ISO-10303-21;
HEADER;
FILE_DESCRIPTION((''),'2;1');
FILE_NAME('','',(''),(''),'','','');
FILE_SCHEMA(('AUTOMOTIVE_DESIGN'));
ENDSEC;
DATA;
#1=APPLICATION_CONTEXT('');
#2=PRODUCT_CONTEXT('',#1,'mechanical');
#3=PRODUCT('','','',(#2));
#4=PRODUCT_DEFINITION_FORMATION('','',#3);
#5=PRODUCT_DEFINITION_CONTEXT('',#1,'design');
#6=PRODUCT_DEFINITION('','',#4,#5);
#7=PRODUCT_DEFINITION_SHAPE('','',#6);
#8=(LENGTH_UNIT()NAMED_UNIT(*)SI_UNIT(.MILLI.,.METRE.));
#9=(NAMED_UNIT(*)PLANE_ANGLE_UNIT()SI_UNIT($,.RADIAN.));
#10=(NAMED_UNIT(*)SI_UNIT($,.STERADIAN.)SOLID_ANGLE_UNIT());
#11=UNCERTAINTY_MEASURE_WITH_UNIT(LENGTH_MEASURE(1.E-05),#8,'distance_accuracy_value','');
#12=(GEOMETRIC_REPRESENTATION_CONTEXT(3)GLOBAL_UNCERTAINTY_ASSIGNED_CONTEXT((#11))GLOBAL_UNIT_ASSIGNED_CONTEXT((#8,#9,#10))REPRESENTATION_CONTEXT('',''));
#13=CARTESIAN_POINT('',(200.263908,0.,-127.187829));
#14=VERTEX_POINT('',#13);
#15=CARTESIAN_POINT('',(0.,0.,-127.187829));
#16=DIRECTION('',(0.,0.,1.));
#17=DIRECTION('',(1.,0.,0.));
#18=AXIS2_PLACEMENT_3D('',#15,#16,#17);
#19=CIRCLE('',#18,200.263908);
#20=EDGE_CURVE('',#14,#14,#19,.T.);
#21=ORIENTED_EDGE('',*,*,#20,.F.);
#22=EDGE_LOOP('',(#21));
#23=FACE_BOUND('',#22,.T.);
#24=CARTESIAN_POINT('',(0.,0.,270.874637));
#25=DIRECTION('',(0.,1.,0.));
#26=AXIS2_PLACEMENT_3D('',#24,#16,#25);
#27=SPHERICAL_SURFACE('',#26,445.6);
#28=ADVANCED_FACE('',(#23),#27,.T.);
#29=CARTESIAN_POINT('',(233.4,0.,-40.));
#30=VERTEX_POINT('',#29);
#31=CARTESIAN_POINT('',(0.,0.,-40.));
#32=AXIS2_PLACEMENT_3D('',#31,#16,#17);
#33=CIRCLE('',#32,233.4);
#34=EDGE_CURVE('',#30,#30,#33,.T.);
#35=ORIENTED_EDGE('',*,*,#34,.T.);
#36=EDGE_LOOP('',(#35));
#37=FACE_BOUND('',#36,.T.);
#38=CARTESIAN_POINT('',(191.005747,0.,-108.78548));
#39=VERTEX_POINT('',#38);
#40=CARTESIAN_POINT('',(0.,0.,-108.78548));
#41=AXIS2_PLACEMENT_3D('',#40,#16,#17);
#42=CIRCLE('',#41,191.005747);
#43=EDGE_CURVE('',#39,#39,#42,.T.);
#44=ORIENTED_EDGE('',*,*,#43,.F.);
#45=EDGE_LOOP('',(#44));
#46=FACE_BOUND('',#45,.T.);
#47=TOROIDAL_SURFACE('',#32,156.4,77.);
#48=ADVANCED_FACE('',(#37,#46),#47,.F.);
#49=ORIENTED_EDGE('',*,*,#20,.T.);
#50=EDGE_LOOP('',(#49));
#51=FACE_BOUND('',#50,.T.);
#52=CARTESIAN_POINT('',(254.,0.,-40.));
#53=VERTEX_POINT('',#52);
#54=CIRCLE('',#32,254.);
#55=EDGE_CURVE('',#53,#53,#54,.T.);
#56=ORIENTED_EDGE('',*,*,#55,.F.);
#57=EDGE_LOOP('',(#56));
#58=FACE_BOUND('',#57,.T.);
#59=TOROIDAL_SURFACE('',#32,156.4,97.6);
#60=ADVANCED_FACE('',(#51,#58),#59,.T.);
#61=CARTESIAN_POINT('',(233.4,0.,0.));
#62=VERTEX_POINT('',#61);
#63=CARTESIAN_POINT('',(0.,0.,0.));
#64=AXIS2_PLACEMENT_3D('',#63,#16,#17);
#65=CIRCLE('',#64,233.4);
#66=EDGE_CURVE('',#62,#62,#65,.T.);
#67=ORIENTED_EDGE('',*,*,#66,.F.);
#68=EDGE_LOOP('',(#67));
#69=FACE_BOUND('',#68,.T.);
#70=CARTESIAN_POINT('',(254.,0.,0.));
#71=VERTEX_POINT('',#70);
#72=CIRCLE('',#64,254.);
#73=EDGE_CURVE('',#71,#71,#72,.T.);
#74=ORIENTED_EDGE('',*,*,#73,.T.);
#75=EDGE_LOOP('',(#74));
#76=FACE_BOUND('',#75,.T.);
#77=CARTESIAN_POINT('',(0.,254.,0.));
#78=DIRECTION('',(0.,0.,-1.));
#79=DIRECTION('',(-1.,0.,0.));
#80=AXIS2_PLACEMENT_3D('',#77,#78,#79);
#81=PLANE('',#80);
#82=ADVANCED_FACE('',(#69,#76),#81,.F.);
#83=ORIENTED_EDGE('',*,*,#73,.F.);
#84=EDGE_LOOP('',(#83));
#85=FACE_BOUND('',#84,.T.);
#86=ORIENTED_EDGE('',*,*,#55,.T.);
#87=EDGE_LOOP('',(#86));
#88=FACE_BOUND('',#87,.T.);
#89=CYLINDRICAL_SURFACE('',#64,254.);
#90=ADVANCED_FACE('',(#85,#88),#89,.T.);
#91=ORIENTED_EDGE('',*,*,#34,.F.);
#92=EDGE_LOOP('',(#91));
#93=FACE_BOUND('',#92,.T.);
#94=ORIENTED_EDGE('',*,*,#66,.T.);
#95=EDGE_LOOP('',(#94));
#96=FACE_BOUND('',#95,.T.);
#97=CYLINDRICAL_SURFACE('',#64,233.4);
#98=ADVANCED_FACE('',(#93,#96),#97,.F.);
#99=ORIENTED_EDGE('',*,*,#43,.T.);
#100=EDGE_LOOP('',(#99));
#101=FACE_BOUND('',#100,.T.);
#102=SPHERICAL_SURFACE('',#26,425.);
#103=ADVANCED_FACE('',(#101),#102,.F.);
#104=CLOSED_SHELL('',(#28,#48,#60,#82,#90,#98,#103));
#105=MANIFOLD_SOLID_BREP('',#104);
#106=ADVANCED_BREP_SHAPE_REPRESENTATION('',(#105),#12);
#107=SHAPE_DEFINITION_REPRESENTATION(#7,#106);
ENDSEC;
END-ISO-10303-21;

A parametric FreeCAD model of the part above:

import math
import FreeCAD as App
import Part
import Sketcher

doc = App.newDocument("Part")
body = doc.addObject("PartDesign::Body", "Body")

# Sketch on YZ plane
sketch1 = doc.addObject("Sketcher::SketchObject", "Sketch")
body.addObject(sketch1)
sketch1.AttachmentSupport = (doc.YZ_Plane, [""])
sketch1.MapMode = "FlatFace"
sketch1.addGeometry(Part.LineSegment(App.Vector(254, -40, 0), App.Vector(254, 0, 0)), False)
sketch1.addGeometry(Part.LineSegment(App.Vector(254, 0, 0), App.Vector(233, 0, 0)), False)
sketch1.addGeometry(Part.LineSegment(App.Vector(233, 0, 0), App.Vector(233, -40, 0)), False)
sketch1.addGeometry(Part.ArcOfCircle(Part.Circle(App.Vector(156, -40, 0), App.Vector(0, 0, 1), 77), math.radians(-63), math.radians(0)), False)
sketch1.addGeometry(Part.ArcOfCircle(Part.Circle(App.Vector(0, 271, 0), App.Vector(0, 0, 1), 425), math.radians(-90), math.radians(-63)), False)
sketch1.addGeometry(Part.LineSegment(App.Vector(0, -154, 0), App.Vector(0, -175, 0)), False)
sketch1.addGeometry(Part.ArcOfCircle(Part.Circle(App.Vector(0, 271, 0), App.Vector(0, 0, 1), 446), math.radians(-90), math.radians(-63)), False)
sketch1.addGeometry(Part.ArcOfCircle(Part.Circle(App.Vector(156, -40, 0), App.Vector(0, 0, 1), 98), math.radians(-63), math.radians(0)), False)
sketch1.addConstraint(Sketcher.Constraint("Coincident", 0, 2, 1, 1))
sketch1.addConstraint(Sketcher.Constraint("Coincident", 1, 2, 2, 1))
sketch1.addConstraint(Sketcher.Constraint("Tangent", 2, 2, 3, 2))
sketch1.addConstraint(Sketcher.Constraint("Tangent", 3, 1, 4, 2))
sketch1.addConstraint(Sketcher.Constraint("Coincident", 4, 1, 5, 1))
sketch1.addConstraint(Sketcher.Constraint("Coincident", 5, 2, 6, 1))
sketch1.addConstraint(Sketcher.Constraint("Tangent", 6, 2, 7, 1))
sketch1.addConstraint(Sketcher.Constraint("Tangent", 7, 2, 0, 1))
sketch1.addConstraint(Sketcher.Constraint("Vertical", 0))
sketch1.addConstraint(Sketcher.Constraint("Horizontal", 1))
sketch1.addConstraint(Sketcher.Constraint("Vertical", 2))
sketch1.addConstraint(Sketcher.Constraint("Vertical", 5))
sketch1.addConstraint(Sketcher.Constraint("Coincident", 6, 3, 4, 3))
sketch1.addConstraint(Sketcher.Constraint("Coincident", 7, 3, 3, 3))
sketch1.addConstraint(Sketcher.Constraint("PointOnObject", 4, 3, -2))
sketch1.addConstraint(Sketcher.Constraint("PointOnObject", 0, 2, -1))
sketch1.addConstraint(Sketcher.Constraint("PointOnObject", 5, 2, -2))
sketch1.addConstraint(Sketcher.Constraint("Radius", 3, 77.0))
sketch1.addConstraint(Sketcher.Constraint("Radius", 4, 425.0))
sketch1.addConstraint(Sketcher.Constraint("Radius", 6, 445.6))
sketch1.addConstraint(Sketcher.Constraint("DistanceY", 0, 1, 0, 2, 40.0))
sketch1.addConstraint(Sketcher.Constraint("DistanceX", -1, 1, 0, 2, 254.0))
revolution = doc.addObject("PartDesign::Revolution", "Revolution")
body.addObject(revolution)
revolution.Profile = sketch1
revolution.ReferenceAxis = (sketch1, ["V_Axis"])
revolution.Angle = 360

doc.recompute()
